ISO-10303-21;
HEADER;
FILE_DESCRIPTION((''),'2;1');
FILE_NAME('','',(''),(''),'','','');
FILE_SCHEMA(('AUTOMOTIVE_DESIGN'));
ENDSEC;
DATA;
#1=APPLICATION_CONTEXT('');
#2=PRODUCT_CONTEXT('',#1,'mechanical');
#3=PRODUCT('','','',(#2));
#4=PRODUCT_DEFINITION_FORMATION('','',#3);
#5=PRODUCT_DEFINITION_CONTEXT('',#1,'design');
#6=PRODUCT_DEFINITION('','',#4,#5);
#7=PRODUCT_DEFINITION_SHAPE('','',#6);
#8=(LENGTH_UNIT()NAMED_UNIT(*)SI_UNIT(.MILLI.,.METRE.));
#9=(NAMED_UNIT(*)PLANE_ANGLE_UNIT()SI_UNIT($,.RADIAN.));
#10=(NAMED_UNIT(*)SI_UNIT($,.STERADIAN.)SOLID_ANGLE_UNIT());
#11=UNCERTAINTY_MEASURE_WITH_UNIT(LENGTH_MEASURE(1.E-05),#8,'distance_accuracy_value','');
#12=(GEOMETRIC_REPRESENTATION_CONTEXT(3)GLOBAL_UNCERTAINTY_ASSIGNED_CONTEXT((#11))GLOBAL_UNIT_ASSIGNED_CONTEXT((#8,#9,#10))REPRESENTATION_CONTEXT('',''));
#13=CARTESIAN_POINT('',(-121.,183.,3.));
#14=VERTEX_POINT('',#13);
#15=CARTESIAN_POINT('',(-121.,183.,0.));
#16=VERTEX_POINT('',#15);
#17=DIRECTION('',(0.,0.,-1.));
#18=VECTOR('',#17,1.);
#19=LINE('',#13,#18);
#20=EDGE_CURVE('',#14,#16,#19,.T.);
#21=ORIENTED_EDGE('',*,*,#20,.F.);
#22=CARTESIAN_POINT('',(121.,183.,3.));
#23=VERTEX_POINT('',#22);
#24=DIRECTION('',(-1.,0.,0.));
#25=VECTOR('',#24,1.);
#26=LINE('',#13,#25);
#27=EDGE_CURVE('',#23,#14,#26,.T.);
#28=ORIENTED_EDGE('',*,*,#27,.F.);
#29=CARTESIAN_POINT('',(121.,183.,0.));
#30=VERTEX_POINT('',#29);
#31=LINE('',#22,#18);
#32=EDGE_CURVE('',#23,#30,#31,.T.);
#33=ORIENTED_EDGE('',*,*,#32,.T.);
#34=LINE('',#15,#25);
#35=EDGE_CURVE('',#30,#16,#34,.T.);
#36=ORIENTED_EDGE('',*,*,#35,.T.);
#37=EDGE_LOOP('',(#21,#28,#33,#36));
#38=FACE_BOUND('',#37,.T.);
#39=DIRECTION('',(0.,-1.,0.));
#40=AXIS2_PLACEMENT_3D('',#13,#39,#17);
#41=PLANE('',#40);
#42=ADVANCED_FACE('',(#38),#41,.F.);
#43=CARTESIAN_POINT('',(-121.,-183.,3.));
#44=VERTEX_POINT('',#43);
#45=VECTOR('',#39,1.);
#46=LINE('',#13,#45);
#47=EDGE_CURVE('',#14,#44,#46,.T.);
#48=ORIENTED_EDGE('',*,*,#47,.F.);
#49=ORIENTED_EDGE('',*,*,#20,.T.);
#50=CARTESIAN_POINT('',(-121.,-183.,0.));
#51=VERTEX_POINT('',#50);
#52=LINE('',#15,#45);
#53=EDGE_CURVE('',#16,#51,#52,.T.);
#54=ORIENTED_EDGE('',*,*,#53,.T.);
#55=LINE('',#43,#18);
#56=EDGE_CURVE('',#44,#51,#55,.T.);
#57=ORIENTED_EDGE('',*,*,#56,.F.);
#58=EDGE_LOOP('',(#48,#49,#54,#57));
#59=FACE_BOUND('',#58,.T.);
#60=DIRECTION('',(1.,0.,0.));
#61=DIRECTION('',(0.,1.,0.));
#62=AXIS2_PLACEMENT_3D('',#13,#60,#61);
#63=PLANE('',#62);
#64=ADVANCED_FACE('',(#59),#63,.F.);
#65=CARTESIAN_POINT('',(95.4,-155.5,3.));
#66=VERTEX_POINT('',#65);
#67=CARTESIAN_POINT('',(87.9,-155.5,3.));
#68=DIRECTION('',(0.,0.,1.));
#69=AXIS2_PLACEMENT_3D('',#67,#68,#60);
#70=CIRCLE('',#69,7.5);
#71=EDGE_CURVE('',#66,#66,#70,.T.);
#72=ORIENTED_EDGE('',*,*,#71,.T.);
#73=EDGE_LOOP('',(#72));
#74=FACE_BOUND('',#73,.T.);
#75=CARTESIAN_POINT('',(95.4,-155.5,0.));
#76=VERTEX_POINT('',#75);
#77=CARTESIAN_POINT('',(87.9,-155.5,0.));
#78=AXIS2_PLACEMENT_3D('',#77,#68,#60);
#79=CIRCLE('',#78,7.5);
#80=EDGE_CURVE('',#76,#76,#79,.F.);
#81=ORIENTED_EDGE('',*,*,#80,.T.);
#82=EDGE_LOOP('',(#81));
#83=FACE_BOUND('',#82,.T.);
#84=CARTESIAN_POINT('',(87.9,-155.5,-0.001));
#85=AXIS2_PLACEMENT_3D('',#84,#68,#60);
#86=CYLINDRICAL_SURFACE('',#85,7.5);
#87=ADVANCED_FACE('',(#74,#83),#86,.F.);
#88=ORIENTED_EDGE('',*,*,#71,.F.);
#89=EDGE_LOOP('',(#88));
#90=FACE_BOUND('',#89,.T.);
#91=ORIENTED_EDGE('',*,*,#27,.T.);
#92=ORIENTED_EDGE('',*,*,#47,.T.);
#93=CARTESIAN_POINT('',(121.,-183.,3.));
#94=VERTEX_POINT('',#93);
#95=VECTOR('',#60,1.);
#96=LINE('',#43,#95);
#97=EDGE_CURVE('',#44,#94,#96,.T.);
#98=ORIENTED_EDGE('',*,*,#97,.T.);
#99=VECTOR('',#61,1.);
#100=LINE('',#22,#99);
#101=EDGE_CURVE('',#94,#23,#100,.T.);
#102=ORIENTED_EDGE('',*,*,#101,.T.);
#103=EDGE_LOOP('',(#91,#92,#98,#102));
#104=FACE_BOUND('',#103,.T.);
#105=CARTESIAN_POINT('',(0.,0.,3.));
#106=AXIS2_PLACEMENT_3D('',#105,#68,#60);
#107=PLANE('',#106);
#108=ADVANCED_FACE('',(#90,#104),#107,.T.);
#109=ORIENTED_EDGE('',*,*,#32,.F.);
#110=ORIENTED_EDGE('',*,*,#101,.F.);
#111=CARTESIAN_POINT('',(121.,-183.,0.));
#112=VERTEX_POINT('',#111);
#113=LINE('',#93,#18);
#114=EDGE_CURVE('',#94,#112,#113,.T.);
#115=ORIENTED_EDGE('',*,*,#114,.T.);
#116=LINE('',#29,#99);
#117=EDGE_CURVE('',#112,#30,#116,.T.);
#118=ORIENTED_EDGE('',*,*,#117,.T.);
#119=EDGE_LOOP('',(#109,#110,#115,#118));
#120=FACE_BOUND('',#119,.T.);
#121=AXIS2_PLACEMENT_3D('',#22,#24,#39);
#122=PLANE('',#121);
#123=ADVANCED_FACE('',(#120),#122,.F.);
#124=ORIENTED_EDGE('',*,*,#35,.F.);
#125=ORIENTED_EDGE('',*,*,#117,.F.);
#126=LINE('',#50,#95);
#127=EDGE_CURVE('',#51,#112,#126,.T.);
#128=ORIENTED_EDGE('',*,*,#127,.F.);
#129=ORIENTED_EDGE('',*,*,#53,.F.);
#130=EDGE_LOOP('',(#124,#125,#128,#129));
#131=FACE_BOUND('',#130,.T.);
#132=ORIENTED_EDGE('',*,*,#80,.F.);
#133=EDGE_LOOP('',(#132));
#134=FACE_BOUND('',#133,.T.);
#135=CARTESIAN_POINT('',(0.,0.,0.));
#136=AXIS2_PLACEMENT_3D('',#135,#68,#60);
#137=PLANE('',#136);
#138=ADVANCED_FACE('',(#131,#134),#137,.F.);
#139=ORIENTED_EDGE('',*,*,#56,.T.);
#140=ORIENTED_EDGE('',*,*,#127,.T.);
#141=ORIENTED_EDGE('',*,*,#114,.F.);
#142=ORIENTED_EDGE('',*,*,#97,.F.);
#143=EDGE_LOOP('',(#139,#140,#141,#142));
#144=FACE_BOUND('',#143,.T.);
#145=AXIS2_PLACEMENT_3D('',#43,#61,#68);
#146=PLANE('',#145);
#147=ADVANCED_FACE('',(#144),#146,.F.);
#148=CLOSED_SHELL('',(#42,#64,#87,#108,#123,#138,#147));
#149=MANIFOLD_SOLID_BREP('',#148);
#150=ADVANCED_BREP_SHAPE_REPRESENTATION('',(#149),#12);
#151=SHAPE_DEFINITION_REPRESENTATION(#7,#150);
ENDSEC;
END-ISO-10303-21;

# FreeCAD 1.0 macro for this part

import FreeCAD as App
import Part
import Sketcher
from FreeCAD import Vector


def add_polygon(sketch, points):
    """Adds a closed chain of lines whose ends are joined by coincident constraints."""
    first, n = sketch.GeometryCount, len(points)
    for a, b in zip(points, points[1:] + points[:1]):
        sketch.addGeometry(Part.LineSegment(App.Vector(*a, 0), App.Vector(*b, 0)), False)
    for i in range(n):
        sketch.addConstraint(Sketcher.Constraint("Coincident", first + i, 2, first + (i + 1) % n, 1))

doc = App.newDocument("Part")
body = doc.addObject("PartDesign::Body", "Body")

sketch1 = body.newObject("Sketcher::SketchObject", "Sketch")
sketch1.AttachmentSupport = (doc.getObject("XY_Plane"), [""])
sketch1.MapMode = "FlatFace"
add_polygon(sketch1, [(-121, 183), (-121, -183), (121, -183), (121, 183)])
sketch1.addConstraint(Sketcher.Constraint("Vertical", 0))
sketch1.addConstraint(Sketcher.Constraint("Horizontal", 1))
sketch1.addConstraint(Sketcher.Constraint("Vertical", 2))
sketch1.addConstraint(Sketcher.Constraint("Horizontal", 3))
sketch1.addConstraint(Sketcher.Constraint("Symmetric", 0, 2, 2, 2, -1, 1))
sketch1.addConstraint(Sketcher.Constraint("DistanceX", 1, 1, 1, 2, 242.0))
sketch1.addConstraint(Sketcher.Constraint("DistanceY", 0, 2, 0, 1, 366.0))
pad1 = body.newObject("PartDesign::Pad", "Pad")
pad1.Profile = sketch1
pad1.Length = 3

sketch2 = body.newObject("Sketcher::SketchObject", "Sketch001")
sketch2.AttachmentSupport = (doc.getObject("XY_Plane"), [""])
sketch2.MapMode = "FlatFace"
sketch2.AttachmentOffset = App.Placement(Vector(0, 0, 3), App.Rotation())
sketch2.addGeometry(Part.Circle(Vector(87.9, -155.5, 0), Vector(0, 0, 1), 7.5), False)
sketch2.addConstraint(Sketcher.Constraint("Diameter", 0, 15.0))
sketch2.addConstraint(Sketcher.Constraint("DistanceX", -1, 1, 0, 3, 87.9))
sketch2.addConstraint(Sketcher.Constraint("DistanceY", 0, 3, -1, 1, 155.5))
pocket1 = body.newObject("PartDesign::Pocket", "Pocket")
pocket1.Profile = sketch2
pocket1.Type = "UpToFirst"

doc.recompute()
